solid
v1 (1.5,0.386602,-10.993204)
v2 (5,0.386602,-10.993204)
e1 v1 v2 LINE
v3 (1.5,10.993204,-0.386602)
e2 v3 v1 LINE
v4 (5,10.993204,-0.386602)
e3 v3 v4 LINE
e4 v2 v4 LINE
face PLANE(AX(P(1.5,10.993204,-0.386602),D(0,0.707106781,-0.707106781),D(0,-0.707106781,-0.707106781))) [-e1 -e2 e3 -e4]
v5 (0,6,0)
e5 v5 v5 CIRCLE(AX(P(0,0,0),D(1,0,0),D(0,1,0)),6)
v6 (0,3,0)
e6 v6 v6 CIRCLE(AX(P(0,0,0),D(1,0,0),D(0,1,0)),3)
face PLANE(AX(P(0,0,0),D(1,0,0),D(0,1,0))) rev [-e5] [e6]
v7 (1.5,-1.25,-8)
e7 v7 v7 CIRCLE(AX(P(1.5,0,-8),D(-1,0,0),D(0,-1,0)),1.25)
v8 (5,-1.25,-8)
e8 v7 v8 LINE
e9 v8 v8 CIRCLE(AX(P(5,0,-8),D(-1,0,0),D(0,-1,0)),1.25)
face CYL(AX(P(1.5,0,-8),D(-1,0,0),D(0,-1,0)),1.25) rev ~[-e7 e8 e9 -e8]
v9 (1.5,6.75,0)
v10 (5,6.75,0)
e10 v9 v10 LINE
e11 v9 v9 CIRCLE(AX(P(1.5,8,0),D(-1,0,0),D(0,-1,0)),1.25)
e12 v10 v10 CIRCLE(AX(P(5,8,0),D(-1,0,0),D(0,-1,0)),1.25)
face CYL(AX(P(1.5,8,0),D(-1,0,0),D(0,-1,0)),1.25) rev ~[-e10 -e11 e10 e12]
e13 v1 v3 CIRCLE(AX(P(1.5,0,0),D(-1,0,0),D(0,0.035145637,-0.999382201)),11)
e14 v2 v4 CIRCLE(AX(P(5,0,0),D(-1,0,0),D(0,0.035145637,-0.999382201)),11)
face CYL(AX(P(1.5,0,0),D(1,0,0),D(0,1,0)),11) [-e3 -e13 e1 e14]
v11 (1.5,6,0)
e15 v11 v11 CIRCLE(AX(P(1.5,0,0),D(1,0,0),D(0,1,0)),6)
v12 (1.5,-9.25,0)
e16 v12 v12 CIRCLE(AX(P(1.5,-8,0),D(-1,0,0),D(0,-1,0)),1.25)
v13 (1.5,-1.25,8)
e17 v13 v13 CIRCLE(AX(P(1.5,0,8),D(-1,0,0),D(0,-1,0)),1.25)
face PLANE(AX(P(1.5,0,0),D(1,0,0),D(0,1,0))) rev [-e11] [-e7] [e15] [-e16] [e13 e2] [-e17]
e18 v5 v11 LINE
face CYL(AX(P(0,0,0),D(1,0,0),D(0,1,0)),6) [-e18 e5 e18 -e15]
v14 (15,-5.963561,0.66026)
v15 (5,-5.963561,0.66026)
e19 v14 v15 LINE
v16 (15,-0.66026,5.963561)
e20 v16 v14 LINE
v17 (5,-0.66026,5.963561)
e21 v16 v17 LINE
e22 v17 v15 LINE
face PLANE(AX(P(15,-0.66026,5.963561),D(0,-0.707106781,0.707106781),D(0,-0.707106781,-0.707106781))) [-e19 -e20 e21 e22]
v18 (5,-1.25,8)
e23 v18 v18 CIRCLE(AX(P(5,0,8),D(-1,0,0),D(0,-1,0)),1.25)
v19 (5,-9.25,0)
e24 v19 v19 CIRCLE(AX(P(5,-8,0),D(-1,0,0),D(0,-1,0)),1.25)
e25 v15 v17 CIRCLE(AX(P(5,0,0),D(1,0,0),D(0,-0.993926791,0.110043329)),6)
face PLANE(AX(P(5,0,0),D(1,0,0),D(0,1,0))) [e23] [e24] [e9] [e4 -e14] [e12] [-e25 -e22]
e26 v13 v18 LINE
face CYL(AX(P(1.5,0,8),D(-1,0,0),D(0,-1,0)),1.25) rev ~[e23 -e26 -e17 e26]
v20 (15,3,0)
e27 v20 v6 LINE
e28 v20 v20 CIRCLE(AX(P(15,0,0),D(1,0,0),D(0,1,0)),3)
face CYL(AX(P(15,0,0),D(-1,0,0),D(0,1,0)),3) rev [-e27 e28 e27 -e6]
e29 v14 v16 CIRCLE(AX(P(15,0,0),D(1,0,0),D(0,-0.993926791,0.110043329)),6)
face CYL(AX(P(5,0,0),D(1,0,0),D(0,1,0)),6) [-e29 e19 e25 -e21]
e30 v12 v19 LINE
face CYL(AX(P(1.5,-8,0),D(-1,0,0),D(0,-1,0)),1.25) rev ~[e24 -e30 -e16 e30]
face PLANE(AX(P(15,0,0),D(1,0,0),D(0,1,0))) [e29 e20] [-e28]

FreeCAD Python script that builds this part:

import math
import FreeCAD as App
import Part
import Sketcher
from FreeCAD import Vector
Q = App.Units.Quantity

doc = App.newDocument("Part")
body = doc.addObject("PartDesign::Body", "Body")

# Sketch on XY plane
sketch1 = body.newObject("Sketcher::SketchObject", "Sketch")
sketch1.AttachmentSupport = (doc.getObject("XY_Plane"), [""])
sketch1.MapMode = "FlatFace"
sketch1.addGeometry(Part.LineSegment(Vector(0, 6, 0), Vector(0, 3, 0)), False)
sketch1.addGeometry(Part.LineSegment(Vector(0, 3, 0), Vector(15, 3, 0)), False)
sketch1.addGeometry(Part.LineSegment(Vector(15, 3, 0), Vector(15, 6, 0)), False)
sketch1.addGeometry(Part.LineSegment(Vector(15, 6, 0), Vector(5, 6, 0)), False)
sketch1.addGeometry(Part.LineSegment(Vector(5, 6, 0), Vector(5, 11, 0)), False)
sketch1.addGeometry(Part.LineSegment(Vector(5, 11, 0), Vector(1.5, 11, 0)), False)
sketch1.addGeometry(Part.LineSegment(Vector(1.5, 11, 0), Vector(1.5, 6, 0)), False)
sketch1.addGeometry(Part.LineSegment(Vector(1.5, 6, 0), Vector(0, 6, 0)), False)
sketch1.addConstraint(Sketcher.Constraint("Coincident", 0, 2, 1, 1))
sketch1.addConstraint(Sketcher.Constraint("Coincident", 1, 2, 2, 1))
sketch1.addConstraint(Sketcher.Constraint("Coincident", 2, 2, 3, 1))
sketch1.addConstraint(Sketcher.Constraint("Coincident", 3, 2, 4, 1))
sketch1.addConstraint(Sketcher.Constraint("Coincident", 4, 2, 5, 1))
sketch1.addConstraint(Sketcher.Constraint("Coincident", 5, 2, 6, 1))
sketch1.addConstraint(Sketcher.Constraint("Coincident", 6, 2, 7, 1))
sketch1.addConstraint(Sketcher.Constraint("Coincident", 7, 2, 0, 1))
sketch1.addConstraint(Sketcher.Constraint("Vertical", 0))
sketch1.addConstraint(Sketcher.Constraint("Horizontal", 1))
sketch1.addConstraint(Sketcher.Constraint("Vertical", 2))
sketch1.addConstraint(Sketcher.Constraint("Horizontal", 3))
sketch1.addConstraint(Sketcher.Constraint("Vertical", 4))
sketch1.addConstraint(Sketcher.Constraint("Horizontal", 5))
sketch1.addConstraint(Sketcher.Constraint("Vertical", 6))
sketch1.addConstraint(Sketcher.Constraint("Horizontal", 7))
sketch1.addConstraint(Sketcher.Constraint("PointOnObject", 0, 2, -2))
sketch1.addConstraint(Sketcher.Constraint("Horizontal", 3, 2, 6, 2))
sketch1.addConstraint(Sketcher.Constraint("DistanceX", 1, 1, 1, 2, 15.0))
sketch1.addConstraint(Sketcher.Constraint("DistanceX", 3, 2, 3, 1, 10.0))
sketch1.addConstraint(Sketcher.Constraint("DistanceY", 0, 2, 0, 1, 3.0))
sketch1.addConstraint(Sketcher.Constraint("DistanceY", 4, 1, 4, 2, 5.0))
sketch1.addConstraint(Sketcher.Constraint("DistanceX", 5, 2, 5, 1, 3.5))
sketch1.addConstraint(Sketcher.Constraint("DistanceY", -1, 1, 0, 2, 3.0))
revolution = body.newObject("PartDesign::Revolution", "Revolution")
revolution.Profile = sketch1
revolution.ReferenceAxis = (sketch1, ["H_Axis"])
revolution.Angle = 360

# Sketch on YZ plane
sketch2 = body.newObject("Sketcher::SketchObject", "Sketch001")
sketch2.AttachmentSupport = (doc.getObject("YZ_Plane"), [""])
sketch2.MapMode = "FlatFace"
sketch2.AttachmentOffset = App.Placement(Vector(0, 0, 1.5), App.Rotation())
sketch2.addGeometry(Part.Circle(Vector(0, 8, 0), Vector(0, 0, 1), 1.25), False)
sketch2.addGeometry(Part.Circle(Vector(8, 0, 0), Vector(0, 0, 1), 1.25), False)
sketch2.addGeometry(Part.Circle(Vector(-8, 0, 0), Vector(0, 0, 1), 1.25), False)
sketch2.addGeometry(Part.Circle(Vector(0, -8, 0), Vector(0, 0, 1), 1.25), False)
sketch2.addConstraint(Sketcher.Constraint("Equal", 0, 1))
sketch2.addConstraint(Sketcher.Constraint("Equal", 1, 2))
sketch2.addConstraint(Sketcher.Constraint("Equal", 2, 3))
sketch2.addConstraint(Sketcher.Constraint("Symmetric", 1, 3, 2, 3, -1, 1))
sketch2.addConstraint(Sketcher.Constraint("Symmetric", 0, 3, 3, 3, -1, 1))
sketch2.addConstraint(Sketcher.Constraint("PointOnObject", 0, 3, -2))
sketch2.addConstraint(Sketcher.Constraint("PointOnObject", 1, 3, -1))
sketch2.addConstraint(Sketcher.Constraint("Diameter", 0, 2.5))
sketch2.addConstraint(Sketcher.Constraint("DistanceY", -1, 1, 0, 3, 8.0))
sketch2.addConstraint(Sketcher.Constraint("DistanceX", -1, 1, 1, 3, 8.0))
pocket1 = body.newObject("PartDesign::Pocket", "Pocket")
pocket1.Profile = sketch2
pocket1.Length = 5
pocket1.Reversed = True

# Sketch on YZ plane
sketch3 = body.newObject("Sketcher::SketchObject", "Sketch002")
sketch3.AttachmentSupport = (doc.getObject("YZ_Plane"), [""])
sketch3.MapMode = "FlatFace"
sketch3.AttachmentOffset = App.Placement(Vector(0, 0, 1.5), App.Rotation())
sketch3.addGeometry(Part.LineSegment(Vector(0.386602, -10.993204, 0), Vector(10.993204, -0.386602, 0)), False)
sketch3.addGeometry(Part.ArcOfCircle(Part.Circle(Vector(0.000002, -0.000002, 0), Vector(0, 0, 1), 10.999998), math.radians(-87.985899), math.radians(-2.014101)), False)
sketch3.addConstraint(Sketcher.Constraint("Coincident", 0, 1, 1, 1))
sketch3.addConstraint(Sketcher.Constraint("Coincident", 1, 2, 0, 2))
sketch3.addConstraint(Sketcher.Constraint("Coincident", 1, 3, -1, 1))
sketch3.addConstraint(Sketcher.Constraint("Angle", 0, Q("45 deg")))
sketch3.addConstraint(Sketcher.Constraint("Distance", 0, 15.0))
sketch3.addConstraint(Sketcher.Constraint("Radius", 1, 10.999998))
pocket2 = body.newObject("PartDesign::Pocket", "Pocket001")
pocket2.Profile = sketch3
pocket2.Length = 5
pocket2.Reversed = True

# Sketch on YZ plane
sketch4 = body.newObject("Sketcher::SketchObject", "Sketch003")
sketch4.AttachmentSupport = (doc.getObject("YZ_Plane"), [""])
sketch4.MapMode = "FlatFace"
sketch4.AttachmentOffset = App.Placement(Vector(0, 0, 15), App.Rotation())
sketch4.addGeometry(Part.LineSegment(Vector(-5.963561, 0.66026, 0), Vector(-0.66026, 5.963561, 0)), False)
sketch4.addGeometry(Part.ArcOfCircle(Part.Circle(Vector(-0.000001, 0.000001, 0), Vector(0, 0, 1), 6), math.radians(96.317808), math.radians(173.682192)), False)
sketch4.addConstraint(Sketcher.Constraint("Coincident", 0, 1, 1, 2))
sketch4.addConstraint(Sketcher.Constraint("Coincident", 1, 1, 0, 2))
sketch4.addConstraint(Sketcher.Constraint("Coincident", 1, 3, -1, 1))
sketch4.addConstraint(Sketcher.Constraint("Radius", 1, 6.0))
sketch4.addConstraint(Sketcher.Constraint("Angle", 0, Q("45 deg")))
sketch4.addConstraint(Sketcher.Constraint("Distance", 0, 7.5))
pocket3 = body.newObject("PartDesign::Pocket", "Pocket002")
pocket3.Profile = sketch4
pocket3.Length = 10

doc.recompute()
